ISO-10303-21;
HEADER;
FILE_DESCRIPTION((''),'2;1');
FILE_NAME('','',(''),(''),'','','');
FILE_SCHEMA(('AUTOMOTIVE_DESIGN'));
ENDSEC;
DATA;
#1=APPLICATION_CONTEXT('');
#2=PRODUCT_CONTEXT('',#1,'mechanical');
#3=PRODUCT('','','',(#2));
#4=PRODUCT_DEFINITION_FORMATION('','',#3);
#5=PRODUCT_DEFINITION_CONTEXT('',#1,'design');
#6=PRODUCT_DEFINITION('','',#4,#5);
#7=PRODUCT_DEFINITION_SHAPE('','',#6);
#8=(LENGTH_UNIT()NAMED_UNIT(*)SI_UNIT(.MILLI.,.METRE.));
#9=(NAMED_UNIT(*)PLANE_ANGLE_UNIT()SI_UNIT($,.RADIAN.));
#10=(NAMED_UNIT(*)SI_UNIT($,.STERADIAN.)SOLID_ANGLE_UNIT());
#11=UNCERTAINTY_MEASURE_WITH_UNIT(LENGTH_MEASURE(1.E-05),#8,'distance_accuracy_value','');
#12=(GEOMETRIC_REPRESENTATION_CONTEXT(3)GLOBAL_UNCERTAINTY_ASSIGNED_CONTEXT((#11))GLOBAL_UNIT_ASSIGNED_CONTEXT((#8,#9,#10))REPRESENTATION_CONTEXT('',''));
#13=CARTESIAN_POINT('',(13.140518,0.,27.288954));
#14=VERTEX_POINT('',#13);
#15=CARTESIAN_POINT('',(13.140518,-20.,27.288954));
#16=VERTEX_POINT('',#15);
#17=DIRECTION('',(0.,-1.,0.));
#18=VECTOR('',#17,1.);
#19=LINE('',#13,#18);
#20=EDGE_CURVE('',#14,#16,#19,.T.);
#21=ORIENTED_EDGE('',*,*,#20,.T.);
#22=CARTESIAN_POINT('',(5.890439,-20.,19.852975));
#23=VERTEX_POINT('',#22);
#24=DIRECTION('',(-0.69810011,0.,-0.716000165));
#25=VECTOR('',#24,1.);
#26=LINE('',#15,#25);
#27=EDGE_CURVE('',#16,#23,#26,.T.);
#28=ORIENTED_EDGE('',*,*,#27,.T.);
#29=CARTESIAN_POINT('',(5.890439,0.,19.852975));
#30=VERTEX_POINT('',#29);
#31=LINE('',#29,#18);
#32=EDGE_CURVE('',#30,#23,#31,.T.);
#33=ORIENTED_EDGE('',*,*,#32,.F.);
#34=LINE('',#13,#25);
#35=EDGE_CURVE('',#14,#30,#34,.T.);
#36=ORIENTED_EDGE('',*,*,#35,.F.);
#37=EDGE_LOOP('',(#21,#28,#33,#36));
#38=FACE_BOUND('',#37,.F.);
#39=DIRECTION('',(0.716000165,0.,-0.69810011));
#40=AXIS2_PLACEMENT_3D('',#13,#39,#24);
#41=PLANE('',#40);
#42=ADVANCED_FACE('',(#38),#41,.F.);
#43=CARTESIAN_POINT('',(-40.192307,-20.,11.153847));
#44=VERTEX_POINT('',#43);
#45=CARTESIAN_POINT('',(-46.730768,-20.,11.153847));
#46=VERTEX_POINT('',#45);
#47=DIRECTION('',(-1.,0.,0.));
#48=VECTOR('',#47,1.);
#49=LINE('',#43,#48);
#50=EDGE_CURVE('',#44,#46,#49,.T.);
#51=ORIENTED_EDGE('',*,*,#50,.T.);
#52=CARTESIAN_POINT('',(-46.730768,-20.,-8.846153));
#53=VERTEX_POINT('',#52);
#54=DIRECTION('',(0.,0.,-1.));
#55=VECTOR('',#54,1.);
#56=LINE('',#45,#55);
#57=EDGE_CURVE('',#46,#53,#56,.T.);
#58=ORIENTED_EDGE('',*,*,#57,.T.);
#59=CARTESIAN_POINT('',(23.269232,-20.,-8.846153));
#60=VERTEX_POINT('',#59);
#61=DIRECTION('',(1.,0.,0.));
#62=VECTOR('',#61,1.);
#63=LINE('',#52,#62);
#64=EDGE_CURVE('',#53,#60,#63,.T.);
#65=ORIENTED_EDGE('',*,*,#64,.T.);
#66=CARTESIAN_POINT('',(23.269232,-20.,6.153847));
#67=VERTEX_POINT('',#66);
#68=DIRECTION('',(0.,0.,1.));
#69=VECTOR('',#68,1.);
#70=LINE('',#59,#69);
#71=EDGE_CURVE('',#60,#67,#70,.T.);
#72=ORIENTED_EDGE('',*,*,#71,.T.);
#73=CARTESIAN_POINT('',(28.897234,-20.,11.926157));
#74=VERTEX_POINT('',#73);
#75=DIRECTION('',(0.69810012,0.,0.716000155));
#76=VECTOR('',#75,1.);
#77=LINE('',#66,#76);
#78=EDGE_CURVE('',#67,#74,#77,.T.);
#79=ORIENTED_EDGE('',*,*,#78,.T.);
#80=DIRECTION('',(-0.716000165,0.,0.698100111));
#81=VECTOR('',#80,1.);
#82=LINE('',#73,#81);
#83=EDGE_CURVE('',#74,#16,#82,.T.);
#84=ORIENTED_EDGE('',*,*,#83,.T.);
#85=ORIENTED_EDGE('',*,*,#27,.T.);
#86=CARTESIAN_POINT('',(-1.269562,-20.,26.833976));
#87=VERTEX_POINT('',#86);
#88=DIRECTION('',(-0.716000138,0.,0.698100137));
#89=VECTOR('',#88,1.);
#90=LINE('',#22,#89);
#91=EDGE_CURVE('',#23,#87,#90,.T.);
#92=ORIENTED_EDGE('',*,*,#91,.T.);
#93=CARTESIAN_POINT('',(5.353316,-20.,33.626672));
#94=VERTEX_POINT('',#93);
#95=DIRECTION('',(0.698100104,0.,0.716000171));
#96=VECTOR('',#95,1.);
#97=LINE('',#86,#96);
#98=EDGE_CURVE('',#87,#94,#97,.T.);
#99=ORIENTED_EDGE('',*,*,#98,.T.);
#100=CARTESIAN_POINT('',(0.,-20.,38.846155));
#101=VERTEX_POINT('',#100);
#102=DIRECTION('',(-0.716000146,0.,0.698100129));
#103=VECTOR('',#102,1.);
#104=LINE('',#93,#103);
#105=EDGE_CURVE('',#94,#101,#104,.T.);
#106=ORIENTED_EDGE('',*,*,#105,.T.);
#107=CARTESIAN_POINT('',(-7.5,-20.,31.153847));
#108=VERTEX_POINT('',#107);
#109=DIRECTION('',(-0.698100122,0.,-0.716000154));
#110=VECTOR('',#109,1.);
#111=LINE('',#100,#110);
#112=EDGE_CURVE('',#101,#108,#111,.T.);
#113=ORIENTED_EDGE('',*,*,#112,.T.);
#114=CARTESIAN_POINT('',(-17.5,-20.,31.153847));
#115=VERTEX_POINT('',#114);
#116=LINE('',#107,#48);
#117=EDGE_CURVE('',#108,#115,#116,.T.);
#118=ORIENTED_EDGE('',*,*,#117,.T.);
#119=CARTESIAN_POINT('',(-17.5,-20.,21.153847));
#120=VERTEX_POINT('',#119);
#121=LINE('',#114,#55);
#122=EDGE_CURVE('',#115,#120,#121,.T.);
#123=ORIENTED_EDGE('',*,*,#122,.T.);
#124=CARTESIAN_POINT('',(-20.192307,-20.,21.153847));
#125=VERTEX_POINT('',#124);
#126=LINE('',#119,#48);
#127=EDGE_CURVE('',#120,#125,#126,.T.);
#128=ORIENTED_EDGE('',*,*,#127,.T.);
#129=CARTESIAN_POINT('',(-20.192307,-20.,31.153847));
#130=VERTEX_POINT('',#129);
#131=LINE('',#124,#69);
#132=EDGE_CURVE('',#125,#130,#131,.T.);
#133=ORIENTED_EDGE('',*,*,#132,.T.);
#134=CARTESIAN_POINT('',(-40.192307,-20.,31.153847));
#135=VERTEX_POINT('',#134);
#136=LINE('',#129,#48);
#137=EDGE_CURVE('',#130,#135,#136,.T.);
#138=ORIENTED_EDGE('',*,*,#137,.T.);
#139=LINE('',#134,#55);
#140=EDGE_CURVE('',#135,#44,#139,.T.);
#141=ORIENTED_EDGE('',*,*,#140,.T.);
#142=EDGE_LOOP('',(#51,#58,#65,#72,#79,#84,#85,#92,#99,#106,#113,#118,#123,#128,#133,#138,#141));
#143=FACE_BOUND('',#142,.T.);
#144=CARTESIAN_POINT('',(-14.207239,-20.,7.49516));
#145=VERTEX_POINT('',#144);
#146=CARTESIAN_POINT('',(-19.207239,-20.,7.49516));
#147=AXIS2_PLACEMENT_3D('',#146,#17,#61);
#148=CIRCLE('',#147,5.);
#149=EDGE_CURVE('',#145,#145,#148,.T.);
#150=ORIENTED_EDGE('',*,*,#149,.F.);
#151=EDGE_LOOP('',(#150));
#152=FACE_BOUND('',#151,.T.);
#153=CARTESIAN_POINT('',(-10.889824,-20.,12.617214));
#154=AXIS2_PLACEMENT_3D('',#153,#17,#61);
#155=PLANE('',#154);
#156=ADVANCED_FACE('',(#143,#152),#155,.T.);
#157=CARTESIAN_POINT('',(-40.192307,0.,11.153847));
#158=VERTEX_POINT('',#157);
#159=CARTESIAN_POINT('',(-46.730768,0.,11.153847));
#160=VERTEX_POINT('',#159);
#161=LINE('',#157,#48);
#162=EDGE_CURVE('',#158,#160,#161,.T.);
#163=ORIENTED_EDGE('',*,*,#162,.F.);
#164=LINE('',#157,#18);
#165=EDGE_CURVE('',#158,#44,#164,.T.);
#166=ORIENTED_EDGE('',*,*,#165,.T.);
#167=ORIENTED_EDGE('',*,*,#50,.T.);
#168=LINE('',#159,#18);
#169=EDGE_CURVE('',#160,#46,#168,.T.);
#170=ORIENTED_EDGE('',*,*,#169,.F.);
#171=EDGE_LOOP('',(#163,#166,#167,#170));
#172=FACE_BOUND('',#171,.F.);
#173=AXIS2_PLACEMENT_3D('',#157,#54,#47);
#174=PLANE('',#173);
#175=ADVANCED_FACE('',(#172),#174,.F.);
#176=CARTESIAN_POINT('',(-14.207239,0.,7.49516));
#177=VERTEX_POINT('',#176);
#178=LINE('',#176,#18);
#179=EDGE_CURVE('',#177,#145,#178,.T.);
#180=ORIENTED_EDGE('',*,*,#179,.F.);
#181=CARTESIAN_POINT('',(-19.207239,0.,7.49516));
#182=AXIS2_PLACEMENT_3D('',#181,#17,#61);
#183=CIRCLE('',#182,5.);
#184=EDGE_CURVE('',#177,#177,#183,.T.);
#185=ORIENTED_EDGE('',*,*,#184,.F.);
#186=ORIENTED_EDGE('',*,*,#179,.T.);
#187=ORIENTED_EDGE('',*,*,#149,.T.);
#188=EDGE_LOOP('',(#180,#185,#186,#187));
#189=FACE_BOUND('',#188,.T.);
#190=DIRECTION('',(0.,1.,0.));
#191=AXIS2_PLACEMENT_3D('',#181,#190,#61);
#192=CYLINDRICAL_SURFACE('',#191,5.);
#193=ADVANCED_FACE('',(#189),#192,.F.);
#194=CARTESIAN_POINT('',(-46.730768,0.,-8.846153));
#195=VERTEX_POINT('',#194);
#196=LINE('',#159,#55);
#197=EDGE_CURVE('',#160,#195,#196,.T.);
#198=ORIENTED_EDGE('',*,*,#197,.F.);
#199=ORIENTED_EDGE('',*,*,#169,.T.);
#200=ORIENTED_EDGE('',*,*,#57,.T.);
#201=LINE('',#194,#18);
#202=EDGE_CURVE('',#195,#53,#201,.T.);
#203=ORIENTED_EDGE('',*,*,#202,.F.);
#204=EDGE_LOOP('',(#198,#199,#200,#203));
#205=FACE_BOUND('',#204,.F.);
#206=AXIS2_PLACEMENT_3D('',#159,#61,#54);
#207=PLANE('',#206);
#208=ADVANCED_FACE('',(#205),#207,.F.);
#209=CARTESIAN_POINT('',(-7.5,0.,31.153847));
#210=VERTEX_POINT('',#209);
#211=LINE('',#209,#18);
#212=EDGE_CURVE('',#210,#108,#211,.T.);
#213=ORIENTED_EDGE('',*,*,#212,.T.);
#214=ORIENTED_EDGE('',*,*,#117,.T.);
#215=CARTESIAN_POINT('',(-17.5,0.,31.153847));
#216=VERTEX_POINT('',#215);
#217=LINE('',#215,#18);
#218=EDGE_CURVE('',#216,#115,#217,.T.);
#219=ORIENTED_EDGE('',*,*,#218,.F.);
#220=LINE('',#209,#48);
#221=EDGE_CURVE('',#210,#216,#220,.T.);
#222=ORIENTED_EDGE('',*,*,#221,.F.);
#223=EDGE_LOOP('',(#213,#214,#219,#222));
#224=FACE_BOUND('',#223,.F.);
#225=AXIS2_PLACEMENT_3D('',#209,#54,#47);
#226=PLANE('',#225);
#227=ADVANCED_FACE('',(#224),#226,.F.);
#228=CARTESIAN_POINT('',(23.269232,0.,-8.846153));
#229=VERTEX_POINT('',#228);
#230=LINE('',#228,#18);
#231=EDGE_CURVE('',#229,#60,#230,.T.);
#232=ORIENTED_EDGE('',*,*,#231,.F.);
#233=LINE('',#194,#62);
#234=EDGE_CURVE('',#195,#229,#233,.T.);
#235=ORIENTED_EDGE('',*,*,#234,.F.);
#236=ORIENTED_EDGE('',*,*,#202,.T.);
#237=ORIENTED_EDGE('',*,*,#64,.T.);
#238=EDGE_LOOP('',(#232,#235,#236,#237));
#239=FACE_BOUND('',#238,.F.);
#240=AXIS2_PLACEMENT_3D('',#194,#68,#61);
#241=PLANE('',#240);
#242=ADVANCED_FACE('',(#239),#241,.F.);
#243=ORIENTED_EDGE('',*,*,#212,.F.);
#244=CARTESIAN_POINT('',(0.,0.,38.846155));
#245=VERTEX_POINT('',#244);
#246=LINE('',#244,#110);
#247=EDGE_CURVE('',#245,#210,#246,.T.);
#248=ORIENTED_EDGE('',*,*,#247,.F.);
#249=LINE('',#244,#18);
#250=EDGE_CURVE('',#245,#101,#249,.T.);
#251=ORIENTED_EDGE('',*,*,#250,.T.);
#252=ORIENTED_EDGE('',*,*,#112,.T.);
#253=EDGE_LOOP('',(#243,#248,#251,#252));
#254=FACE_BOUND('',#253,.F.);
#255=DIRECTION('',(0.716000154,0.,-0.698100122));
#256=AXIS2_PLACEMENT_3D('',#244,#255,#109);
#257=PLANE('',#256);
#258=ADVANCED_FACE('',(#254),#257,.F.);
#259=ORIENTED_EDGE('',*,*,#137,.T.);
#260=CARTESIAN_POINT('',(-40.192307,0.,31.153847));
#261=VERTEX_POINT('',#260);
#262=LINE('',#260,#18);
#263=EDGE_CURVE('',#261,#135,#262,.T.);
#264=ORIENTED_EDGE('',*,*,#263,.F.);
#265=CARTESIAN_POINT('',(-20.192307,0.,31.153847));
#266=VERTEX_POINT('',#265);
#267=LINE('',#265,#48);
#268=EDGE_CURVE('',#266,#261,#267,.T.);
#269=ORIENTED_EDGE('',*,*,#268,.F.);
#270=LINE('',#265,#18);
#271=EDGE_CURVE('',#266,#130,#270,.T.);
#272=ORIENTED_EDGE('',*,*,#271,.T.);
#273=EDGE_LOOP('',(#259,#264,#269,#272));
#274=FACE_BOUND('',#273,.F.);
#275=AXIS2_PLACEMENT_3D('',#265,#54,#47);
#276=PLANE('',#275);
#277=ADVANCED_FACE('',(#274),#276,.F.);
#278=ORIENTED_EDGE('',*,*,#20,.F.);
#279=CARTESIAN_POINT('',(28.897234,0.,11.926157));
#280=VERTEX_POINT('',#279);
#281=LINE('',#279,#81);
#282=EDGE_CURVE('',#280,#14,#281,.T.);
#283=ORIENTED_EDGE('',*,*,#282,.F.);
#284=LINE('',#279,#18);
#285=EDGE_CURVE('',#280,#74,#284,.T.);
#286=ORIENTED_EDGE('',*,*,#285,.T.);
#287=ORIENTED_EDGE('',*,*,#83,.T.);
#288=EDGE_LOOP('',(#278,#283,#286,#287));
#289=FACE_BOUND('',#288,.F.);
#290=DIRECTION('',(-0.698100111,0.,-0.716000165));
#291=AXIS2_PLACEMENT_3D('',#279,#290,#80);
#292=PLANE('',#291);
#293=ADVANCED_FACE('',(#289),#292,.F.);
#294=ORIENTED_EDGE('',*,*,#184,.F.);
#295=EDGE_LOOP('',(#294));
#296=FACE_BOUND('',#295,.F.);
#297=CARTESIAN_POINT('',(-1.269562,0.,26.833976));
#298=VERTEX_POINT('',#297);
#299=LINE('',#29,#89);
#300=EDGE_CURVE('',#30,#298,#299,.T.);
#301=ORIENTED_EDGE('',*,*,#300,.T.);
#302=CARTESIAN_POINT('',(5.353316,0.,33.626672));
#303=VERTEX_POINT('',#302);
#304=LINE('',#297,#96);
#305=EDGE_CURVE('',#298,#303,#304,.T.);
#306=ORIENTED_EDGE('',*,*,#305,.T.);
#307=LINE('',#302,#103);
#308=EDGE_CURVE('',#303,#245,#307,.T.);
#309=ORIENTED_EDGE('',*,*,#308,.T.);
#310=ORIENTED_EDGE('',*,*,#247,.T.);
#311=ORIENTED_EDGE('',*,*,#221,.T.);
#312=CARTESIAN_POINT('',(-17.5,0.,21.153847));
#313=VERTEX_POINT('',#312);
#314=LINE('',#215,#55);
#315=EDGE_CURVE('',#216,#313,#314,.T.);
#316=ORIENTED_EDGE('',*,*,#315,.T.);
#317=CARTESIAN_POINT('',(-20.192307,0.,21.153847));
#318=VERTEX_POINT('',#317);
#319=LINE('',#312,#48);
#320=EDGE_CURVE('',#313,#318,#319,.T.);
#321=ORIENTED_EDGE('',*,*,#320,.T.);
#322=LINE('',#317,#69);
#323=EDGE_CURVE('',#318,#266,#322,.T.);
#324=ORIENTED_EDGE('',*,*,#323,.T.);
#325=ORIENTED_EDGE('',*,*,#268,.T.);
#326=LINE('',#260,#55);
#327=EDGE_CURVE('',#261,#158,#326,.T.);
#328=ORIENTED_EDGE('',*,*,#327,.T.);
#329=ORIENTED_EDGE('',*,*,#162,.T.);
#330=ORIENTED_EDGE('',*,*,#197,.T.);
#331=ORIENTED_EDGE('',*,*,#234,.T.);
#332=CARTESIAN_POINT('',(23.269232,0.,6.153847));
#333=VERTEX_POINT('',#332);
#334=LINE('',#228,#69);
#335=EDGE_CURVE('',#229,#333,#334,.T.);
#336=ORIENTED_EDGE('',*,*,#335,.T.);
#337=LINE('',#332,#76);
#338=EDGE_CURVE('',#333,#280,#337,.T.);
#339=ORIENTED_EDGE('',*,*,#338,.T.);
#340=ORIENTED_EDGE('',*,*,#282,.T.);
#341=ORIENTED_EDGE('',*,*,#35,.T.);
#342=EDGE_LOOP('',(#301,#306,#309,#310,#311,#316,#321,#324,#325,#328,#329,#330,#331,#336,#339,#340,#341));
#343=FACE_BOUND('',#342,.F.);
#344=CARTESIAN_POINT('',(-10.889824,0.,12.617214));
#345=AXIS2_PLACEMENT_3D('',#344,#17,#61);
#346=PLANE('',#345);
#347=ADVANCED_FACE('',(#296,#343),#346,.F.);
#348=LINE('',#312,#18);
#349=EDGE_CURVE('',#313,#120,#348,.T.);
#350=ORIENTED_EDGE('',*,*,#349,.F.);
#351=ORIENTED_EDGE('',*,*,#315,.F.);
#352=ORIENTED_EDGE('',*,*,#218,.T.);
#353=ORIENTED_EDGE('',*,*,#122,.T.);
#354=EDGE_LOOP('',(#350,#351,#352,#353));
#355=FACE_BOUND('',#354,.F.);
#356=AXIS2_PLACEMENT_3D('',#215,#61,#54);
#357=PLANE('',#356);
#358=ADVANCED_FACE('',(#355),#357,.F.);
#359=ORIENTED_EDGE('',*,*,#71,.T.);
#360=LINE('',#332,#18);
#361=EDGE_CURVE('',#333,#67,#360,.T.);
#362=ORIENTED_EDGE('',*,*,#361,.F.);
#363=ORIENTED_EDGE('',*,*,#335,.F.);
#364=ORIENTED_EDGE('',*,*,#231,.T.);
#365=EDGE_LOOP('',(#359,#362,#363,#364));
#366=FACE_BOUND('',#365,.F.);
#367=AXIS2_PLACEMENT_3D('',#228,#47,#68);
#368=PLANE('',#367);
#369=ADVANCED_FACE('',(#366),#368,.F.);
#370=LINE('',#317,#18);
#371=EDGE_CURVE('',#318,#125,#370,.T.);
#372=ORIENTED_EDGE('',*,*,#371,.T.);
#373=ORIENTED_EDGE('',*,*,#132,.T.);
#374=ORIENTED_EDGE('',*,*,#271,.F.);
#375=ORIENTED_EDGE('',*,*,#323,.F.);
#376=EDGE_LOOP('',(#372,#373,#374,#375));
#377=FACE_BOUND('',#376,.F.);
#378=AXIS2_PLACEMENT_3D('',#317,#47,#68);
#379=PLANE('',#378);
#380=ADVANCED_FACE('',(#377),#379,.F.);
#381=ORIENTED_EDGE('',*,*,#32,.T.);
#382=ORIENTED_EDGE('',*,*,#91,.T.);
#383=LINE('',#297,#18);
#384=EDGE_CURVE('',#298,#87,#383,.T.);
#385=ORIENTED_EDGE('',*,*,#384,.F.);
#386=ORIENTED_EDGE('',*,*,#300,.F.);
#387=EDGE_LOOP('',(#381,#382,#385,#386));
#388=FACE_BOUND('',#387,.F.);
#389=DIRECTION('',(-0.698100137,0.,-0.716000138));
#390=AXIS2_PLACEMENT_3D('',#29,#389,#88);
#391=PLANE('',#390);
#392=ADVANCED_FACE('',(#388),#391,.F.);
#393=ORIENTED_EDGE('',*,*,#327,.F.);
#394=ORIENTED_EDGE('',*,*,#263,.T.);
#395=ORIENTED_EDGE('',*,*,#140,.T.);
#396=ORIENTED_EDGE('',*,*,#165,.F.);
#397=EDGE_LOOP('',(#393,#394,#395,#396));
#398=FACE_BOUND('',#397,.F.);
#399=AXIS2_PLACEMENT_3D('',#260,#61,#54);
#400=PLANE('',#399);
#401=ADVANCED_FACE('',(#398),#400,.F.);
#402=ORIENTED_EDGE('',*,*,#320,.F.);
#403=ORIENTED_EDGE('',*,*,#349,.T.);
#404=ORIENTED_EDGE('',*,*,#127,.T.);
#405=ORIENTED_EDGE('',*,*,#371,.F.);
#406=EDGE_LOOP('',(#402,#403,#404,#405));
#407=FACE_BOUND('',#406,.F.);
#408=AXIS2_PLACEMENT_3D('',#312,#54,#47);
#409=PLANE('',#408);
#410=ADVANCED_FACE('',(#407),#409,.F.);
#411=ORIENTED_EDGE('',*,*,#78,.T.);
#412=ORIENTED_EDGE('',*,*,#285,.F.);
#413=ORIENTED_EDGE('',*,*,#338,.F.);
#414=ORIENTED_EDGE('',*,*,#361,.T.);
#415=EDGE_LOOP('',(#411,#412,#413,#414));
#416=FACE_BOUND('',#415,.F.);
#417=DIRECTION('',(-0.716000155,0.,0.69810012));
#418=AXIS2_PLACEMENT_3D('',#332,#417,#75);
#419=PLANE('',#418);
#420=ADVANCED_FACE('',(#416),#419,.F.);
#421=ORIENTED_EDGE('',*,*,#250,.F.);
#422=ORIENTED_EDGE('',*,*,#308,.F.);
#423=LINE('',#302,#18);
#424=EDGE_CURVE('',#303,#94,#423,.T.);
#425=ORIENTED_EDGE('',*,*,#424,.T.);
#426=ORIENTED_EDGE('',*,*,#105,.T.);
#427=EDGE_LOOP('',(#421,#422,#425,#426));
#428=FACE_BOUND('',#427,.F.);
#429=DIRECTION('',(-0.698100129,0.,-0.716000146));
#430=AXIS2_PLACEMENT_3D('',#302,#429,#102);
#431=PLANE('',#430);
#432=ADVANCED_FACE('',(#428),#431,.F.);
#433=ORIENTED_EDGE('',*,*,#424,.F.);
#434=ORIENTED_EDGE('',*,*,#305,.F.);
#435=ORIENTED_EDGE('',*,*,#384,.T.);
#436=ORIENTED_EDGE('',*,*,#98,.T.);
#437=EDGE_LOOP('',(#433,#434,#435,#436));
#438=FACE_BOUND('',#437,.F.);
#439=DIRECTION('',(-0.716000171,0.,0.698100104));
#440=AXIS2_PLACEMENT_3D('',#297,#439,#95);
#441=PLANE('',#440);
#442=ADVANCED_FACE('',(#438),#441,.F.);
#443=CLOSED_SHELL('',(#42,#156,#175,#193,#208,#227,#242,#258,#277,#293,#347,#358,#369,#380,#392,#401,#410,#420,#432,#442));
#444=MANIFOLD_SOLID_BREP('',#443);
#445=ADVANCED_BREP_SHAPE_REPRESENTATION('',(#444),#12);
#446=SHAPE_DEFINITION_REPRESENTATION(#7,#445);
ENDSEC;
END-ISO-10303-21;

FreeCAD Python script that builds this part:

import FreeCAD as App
import Part
import Sketcher

V = App.Vector


def add_polygon(sketch, points):
    """Adds a closed chain of lines whose ends are joined by coincident constraints."""
    first, n = sketch.GeometryCount, len(points)
    for a, b in zip(points, points[1:] + points[:1]):
        sketch.addGeometry(Part.LineSegment(App.Vector(*a, 0), App.Vector(*b, 0)), False)
    for i in range(n):
        sketch.addConstraint(Sketcher.Constraint("Coincident", first + i, 2, first + (i + 1) % n, 1))

doc = App.newDocument("Part")
body = doc.addObject("PartDesign::Body", "Body")

# Sketch on XZ plane
sketch1 = body.newObject("Sketcher::SketchObject", "Sketch")
sketch1.AttachmentSupport = (doc.getObject("XZ_Plane"), [""])
sketch1.MapMode = "FlatFace"
add_polygon(sketch1, [(-20.2, 31.2), (-40.2, 31.2), (-40.2, 11.2), (-46.7, 11.2), (-46.7, -8.8), (23.3, -8.8), (23.3, 6.2), (28.9, 11.9), (13.1, 27.3), (5.9, 19.9), (-1.3, 26.8), (5.4, 33.6), (0, 38.8), (-7.5, 31.2), (-17.5, 31.2), (-17.5, 21.2), (-20.2, 21.2)])  # lines 0-16
sketch1.addGeometry(Part.Circle(V(-19.2, 7.5, 0), V(0, 0, 1), 5), False)  # 17
sketch1.addConstraint([
    Sketcher.Constraint("Horizontal", 0),
    Sketcher.Constraint("Vertical", 1),
    Sketcher.Constraint("Horizontal", 2),
    Sketcher.Constraint("Vertical", 3),
    Sketcher.Constraint("Horizontal", 4),
    Sketcher.Constraint("Vertical", 5),
    Sketcher.Constraint("Horizontal", 13),
    Sketcher.Constraint("Vertical", 14),
    Sketcher.Constraint("Horizontal", 15),
    Sketcher.Constraint("Vertical", 16),
    Sketcher.Constraint("PointOnObject", 11, 2, -2),
    Sketcher.Constraint("Perpendicular", 6, 7),
    Sketcher.Constraint("Perpendicular", 7, 8),
    Sketcher.Constraint("Perpendicular", 8, 9),
    Sketcher.Constraint("Perpendicular", 9, 10),
    Sketcher.Constraint("Perpendicular", 10, 11),
    Sketcher.Constraint("Perpendicular", 11, 12),
    Sketcher.Constraint("Horizontal", 0, 2, 12, 2),
    Sketcher.Constraint("Equal", 0, 1),
    Sketcher.Constraint("Equal", 1, 3),
    Sketcher.Constraint("Equal", 13, 14),
    Sketcher.Constraint("Diameter", 17, 10.0),
    Sketcher.Constraint("DistanceX", 0, 2, 0, 1, 20.0),
    Sketcher.Constraint("DistanceX", 4, 1, 4, 2, 70.0),
    Sketcher.Constraint("DistanceX", 13, 2, 13, 1, 10.0),
    Sketcher.Constraint("DistanceY", 5, 1, 5, 2, 15.0),
    Sketcher.Constraint("Distance", 9, 9.999999),
    Sketcher.Constraint("DistanceX", 12, 2, -1, 1, 7.5),
    Sketcher.Constraint("DistanceX", 9, 2, 8, 2, 7.160001),
    Sketcher.Constraint("DistanceX", 2, 2, 2, 1, 6.538461),
    Sketcher.Constraint("DistanceX", 10, 2, 7, 2, 7.787202),
    Sketcher.Constraint("DistanceY", 7, 2, 11, 2, 11.557201),
    Sketcher.Constraint("Distance", 7, 22.006582),
    Sketcher.Constraint("DistanceX", 17, 3, -1, 1, 19.207239),
    Sketcher.Constraint("DistanceY", -1, 1, 17, 3, 7.49516),
    Sketcher.Constraint("DistanceX", -1, 1, 8, 2, 5.890439),
    Sketcher.Constraint("DistanceY", -1, 1, 0, 2, 31.153847),
])
pad1 = body.newObject("PartDesign::Pad", "Pad")
pad1.Profile = sketch1
pad1.Length = 20

doc.recompute()
